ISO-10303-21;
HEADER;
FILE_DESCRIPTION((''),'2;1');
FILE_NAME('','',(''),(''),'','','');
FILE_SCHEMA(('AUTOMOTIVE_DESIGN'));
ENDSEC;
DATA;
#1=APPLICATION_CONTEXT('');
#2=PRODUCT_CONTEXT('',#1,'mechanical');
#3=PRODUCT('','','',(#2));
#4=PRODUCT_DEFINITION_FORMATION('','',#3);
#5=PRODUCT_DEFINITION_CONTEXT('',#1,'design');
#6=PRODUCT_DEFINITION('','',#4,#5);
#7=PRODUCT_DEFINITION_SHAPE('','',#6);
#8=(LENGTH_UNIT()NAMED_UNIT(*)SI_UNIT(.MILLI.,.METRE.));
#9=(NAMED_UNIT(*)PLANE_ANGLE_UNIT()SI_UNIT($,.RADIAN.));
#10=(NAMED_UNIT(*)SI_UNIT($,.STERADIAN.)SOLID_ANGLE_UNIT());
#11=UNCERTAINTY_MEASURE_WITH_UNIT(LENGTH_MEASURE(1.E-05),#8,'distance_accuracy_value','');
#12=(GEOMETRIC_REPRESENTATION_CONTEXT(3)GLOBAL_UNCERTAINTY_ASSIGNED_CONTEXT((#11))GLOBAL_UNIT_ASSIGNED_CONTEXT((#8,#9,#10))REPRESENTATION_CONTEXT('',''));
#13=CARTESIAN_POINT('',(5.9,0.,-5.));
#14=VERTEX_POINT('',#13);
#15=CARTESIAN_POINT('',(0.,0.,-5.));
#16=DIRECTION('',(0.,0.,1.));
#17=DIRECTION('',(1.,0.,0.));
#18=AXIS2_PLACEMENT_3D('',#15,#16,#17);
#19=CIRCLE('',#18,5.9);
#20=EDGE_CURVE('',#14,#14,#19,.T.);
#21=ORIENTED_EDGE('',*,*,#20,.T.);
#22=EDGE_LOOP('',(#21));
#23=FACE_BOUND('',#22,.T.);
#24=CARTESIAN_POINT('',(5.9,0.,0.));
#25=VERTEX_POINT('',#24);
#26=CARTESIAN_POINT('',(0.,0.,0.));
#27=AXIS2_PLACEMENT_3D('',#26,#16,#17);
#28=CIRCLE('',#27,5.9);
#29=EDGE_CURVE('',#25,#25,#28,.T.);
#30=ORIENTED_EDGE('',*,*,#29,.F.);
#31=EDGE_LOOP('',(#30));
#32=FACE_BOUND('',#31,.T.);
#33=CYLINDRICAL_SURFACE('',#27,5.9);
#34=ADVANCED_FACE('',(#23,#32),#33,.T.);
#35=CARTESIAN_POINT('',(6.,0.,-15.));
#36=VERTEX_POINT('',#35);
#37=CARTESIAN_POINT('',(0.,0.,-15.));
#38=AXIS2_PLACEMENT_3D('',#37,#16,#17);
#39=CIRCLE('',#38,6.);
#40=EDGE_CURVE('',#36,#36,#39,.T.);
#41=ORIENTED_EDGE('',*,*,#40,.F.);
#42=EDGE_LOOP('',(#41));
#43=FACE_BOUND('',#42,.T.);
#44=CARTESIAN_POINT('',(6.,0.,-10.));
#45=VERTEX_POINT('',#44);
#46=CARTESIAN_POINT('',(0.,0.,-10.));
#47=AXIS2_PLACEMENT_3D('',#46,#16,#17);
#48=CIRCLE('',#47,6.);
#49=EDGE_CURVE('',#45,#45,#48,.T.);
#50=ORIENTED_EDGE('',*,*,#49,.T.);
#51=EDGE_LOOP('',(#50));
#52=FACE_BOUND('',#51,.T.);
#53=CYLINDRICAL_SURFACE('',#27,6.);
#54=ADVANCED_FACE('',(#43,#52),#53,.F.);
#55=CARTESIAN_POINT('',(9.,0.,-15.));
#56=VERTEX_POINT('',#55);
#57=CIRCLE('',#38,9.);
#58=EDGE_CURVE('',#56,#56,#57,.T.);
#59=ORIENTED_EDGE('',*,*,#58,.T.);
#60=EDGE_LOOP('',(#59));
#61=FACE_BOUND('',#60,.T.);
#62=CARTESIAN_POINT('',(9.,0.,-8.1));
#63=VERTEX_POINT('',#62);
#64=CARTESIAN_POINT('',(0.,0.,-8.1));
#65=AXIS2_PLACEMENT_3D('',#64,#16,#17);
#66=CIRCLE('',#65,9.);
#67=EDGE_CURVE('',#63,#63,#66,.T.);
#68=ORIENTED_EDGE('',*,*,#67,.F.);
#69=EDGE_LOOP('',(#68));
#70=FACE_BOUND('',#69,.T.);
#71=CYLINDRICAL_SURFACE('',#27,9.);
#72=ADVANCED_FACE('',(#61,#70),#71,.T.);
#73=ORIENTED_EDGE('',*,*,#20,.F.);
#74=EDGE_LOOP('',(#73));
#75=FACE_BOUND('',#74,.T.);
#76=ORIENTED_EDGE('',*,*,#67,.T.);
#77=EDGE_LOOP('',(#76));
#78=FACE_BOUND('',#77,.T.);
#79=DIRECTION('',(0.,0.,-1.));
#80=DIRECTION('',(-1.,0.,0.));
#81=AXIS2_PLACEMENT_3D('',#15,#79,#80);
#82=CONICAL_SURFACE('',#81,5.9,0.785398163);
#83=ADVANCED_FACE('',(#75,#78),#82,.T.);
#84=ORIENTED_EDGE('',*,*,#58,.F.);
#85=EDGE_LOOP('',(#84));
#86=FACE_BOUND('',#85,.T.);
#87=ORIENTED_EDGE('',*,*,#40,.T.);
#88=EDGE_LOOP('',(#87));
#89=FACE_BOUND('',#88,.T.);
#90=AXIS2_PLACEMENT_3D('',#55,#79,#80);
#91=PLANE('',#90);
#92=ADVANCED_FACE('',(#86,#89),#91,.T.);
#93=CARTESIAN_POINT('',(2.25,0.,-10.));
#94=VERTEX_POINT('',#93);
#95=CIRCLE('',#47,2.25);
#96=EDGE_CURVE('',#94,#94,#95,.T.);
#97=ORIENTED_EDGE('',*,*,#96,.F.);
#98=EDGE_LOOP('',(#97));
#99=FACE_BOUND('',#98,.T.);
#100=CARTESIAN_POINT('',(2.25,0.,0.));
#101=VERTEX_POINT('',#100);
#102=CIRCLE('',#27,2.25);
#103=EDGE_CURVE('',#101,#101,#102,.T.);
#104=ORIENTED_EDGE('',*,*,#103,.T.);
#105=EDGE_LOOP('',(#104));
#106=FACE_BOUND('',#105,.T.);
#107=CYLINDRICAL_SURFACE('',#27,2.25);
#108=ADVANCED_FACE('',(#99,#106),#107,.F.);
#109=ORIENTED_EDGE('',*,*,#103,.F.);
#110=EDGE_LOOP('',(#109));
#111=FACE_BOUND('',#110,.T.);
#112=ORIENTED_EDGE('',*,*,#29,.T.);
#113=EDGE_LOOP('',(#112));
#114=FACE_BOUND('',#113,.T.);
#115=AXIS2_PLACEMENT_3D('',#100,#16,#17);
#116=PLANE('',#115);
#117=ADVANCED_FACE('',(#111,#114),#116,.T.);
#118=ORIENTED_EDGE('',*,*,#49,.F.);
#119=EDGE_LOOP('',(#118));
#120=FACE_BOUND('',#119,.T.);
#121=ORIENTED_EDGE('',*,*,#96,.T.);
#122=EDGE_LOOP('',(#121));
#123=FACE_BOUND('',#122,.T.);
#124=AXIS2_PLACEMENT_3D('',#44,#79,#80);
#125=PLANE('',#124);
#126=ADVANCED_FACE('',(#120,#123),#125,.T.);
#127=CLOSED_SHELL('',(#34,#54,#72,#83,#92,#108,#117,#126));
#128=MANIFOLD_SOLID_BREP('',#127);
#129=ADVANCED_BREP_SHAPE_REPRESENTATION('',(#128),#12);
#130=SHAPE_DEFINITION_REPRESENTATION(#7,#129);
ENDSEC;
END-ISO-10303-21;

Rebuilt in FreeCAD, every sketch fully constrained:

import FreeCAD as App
import Part
import Sketcher
from FreeCAD import Vector
Q = App.Units.Quantity

doc = App.newDocument("Part")
params = doc.addObject("Spreadsheet::Sheet", "Params")
for row, (alias, value) in enumerate([
    ("sketch1_width", "3 mm"),
    ("sketch1_height", "5 mm"),
    ("sketch1_height2", "10 mm"),
    ("sketch1_height3", "6.9 mm"),
    ("sketch1_width2", "3.65 mm"),
    ("revolution_angle", "360 deg"),
], start=1):
    params.set(f"A{row}", alias)
    params.set(f"B{row}", "=" + value)
    params.setAlias(f"B{row}", alias)

body = doc.addObject("PartDesign::Body", "Body")

# Sketch on XZ plane
sketch1 = body.newObject("Sketcher::SketchObject", "Sketch")
sketch1.AttachmentSupport = (doc.getObject("XZ_Plane"), [""])
sketch1.MapMode = "FlatFace"
sketch1.addGeometry([
    Part.LineSegment(Vector(2.2, 0, 0), Vector(5.9, 0, 0)),  # 0
    Part.LineSegment(Vector(5.9, 0, 0), Vector(5.9, -5, 0)),  # 1
    Part.LineSegment(Vector(5.9, -5, 0), Vector(9, -8.1, 0)),  # 2
    Part.LineSegment(Vector(9, -8.1, 0), Vector(9, -15, 0)),  # 3
    Part.LineSegment(Vector(9, -15, 0), Vector(6, -15, 0)),  # 4
    Part.LineSegment(Vector(6, -15, 0), Vector(6, -10, 0)),  # 5
    Part.LineSegment(Vector(6, -10, 0), Vector(2.2, -10, 0)),  # 6
    Part.LineSegment(Vector(2.2, -10, 0), Vector(2.2, 0, 0)),  # 7
], False)
sketch1.addConstraint([
    Sketcher.Constraint("Coincident", 0, 2, 1, 1),
    Sketcher.Constraint("Coincident", 1, 2, 2, 1),
    Sketcher.Constraint("Coincident", 2, 2, 3, 1),
    Sketcher.Constraint("Coincident", 3, 2, 4, 1),
    Sketcher.Constraint("Coincident", 4, 2, 5, 1),
    Sketcher.Constraint("Coincident", 5, 2, 6, 1),
    Sketcher.Constraint("Coincident", 6, 2, 7, 1),
    Sketcher.Constraint("Coincident", 7, 2, 0, 1),
    Sketcher.Constraint("Horizontal", 0),
    Sketcher.Constraint("Vertical", 1),
    Sketcher.Constraint("Vertical", 3),
    Sketcher.Constraint("Horizontal", 4),
    Sketcher.Constraint("Vertical", 5),
    Sketcher.Constraint("Horizontal", 6),
    Sketcher.Constraint("Vertical", 7),
    Sketcher.Constraint("PointOnObject", 0, 2, -1),
    Sketcher.Constraint("Equal", 1, 5),
    Sketcher.Constraint("DistanceX", 4, 2, 4, 1, 3.0),
    Sketcher.Constraint("DistanceY", 1, 2, 1, 1, 5.0),
    Sketcher.Constraint("DistanceY", 7, 1, 7, 2, 10.0),
    Sketcher.Constraint("Angle", 2, Q("-45 deg")),
    Sketcher.Constraint("DistanceY", 3, 2, 3, 1, 6.9),
    Sketcher.Constraint("DistanceX", -1, 1, 2, 2, 9.0),
    Sketcher.Constraint("DistanceX", 0, 1, 0, 2, 3.65),
])
sketch1.setExpression("Constraints[17]", "Params.sketch1_width")
sketch1.setExpression("Constraints[18]", "Params.sketch1_height")
sketch1.setExpression("Constraints[19]", "Params.sketch1_height2")
sketch1.setExpression("Constraints[21]", "Params.sketch1_height3")
sketch1.setExpression("Constraints[23]", "Params.sketch1_width2")
revolution = body.newObject("PartDesign::Revolution", "Revolution")
revolution.Profile = sketch1
revolution.ReferenceAxis = (sketch1, ["V_Axis"])
revolution.setExpression("Angle", "Params.revolution_angle")

doc.recompute()
